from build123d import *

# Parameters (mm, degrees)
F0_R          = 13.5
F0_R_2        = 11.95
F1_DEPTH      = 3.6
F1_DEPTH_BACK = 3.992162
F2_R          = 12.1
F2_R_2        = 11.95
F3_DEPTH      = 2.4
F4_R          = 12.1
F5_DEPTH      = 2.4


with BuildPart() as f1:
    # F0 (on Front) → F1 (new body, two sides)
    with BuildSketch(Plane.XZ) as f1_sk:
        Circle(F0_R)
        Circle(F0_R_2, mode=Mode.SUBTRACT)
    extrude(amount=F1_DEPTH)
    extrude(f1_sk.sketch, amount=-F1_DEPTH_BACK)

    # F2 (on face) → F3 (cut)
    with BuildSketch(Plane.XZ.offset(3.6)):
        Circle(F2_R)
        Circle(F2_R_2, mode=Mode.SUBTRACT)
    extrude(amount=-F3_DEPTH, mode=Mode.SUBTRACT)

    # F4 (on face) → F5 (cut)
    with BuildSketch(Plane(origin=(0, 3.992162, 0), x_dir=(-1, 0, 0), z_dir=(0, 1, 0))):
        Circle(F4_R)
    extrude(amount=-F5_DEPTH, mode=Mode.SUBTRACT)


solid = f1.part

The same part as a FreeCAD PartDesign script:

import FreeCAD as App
import Part
import Sketcher

doc = App.newDocument("Part")
body = doc.addObject("PartDesign::Body", "Body")

sketch1 = doc.addObject("Sketcher::SketchObject", "Sketch")
body.addObject(sketch1)
sketch1.AttachmentSupport = (doc.XZ_Plane, [""])
sketch1.MapMode = "FlatFace"
sketch1.addGeometry([
    Part.Circle(App.Vector(0, 0, 0), App.Vector(0, 0, 1), 13.5),
    Part.Circle(App.Vector(0, 0, 0), App.Vector(0, 0, 1), 11.95),
], False)
sketch1.addConstraint([
    Sketcher.Constraint("Coincident", 0, 3, -1, 1),
    Sketcher.Constraint("Coincident", 1, 3, -1, 1),
    Sketcher.Constraint("Diameter", 0, 27.0),
    Sketcher.Constraint("Diameter", 1, 23.9),
])
pad1 = doc.addObject("PartDesign::Pad", "Pad")
body.addObject(pad1)
pad1.Profile = sketch1
pad1.Type = "TwoLengths"
pad1.Length = 3.6
pad1.Length2 = 3.992162

sketch2 = doc.addObject("Sketcher::SketchObject", "Sketch001")
body.addObject(sketch2)
sketch2.AttachmentSupport = (doc.XZ_Plane, [""])
sketch2.MapMode = "FlatFace"
sketch2.AttachmentOffset = App.Placement(App.Vector(0, 0, 3.6), App.Rotation())
sketch2.addGeometry([
    Part.Circle(App.Vector(0, 0, 0), App.Vector(0, 0, 1), 12.1),
    Part.Circle(App.Vector(0, 0, 0), App.Vector(0, 0, 1), 11.95),
], False)
sketch2.addConstraint([
    Sketcher.Constraint("Coincident", 0, 3, -1, 1),
    Sketcher.Constraint("Coincident", 1, 3, -1, 1),
    Sketcher.Constraint("Diameter", 0, 24.2),
    Sketcher.Constraint("Diameter", 1, 23.9),
])
pocket1 = doc.addObject("PartDesign::Pocket", "Pocket")
body.addObject(pocket1)
pocket1.Profile = sketch2
pocket1.Length = 2.4

sketch3 = doc.addObject("Sketcher::SketchObject", "Sketch002")
body.addObject(sketch3)
sketch3.AttachmentSupport = (doc.XZ_Plane, [""])
sketch3.MapMode = "FlatFace"
sketch3.AttachmentOffset = App.Placement(App.Vector(0, 0, -3.992162), App.Rotation())
sketch3.addGeometry(Part.Circle(App.Vector(0, 0, 0), App.Vector(0, 0, 1), 12.1), False)
sketch3.addConstraint([
    Sketcher.Constraint("Coincident", 0, 3, -1, 1),
    Sketcher.Constraint("Diameter", 0, 24.2),
])
pocket2 = doc.addObject("PartDesign::Pocket", "Pocket001")
body.addObject(pocket2)
pocket2.Profile = sketch3
pocket2.Length = 2.4
pocket2.Reversed = True

doc.recompute()
